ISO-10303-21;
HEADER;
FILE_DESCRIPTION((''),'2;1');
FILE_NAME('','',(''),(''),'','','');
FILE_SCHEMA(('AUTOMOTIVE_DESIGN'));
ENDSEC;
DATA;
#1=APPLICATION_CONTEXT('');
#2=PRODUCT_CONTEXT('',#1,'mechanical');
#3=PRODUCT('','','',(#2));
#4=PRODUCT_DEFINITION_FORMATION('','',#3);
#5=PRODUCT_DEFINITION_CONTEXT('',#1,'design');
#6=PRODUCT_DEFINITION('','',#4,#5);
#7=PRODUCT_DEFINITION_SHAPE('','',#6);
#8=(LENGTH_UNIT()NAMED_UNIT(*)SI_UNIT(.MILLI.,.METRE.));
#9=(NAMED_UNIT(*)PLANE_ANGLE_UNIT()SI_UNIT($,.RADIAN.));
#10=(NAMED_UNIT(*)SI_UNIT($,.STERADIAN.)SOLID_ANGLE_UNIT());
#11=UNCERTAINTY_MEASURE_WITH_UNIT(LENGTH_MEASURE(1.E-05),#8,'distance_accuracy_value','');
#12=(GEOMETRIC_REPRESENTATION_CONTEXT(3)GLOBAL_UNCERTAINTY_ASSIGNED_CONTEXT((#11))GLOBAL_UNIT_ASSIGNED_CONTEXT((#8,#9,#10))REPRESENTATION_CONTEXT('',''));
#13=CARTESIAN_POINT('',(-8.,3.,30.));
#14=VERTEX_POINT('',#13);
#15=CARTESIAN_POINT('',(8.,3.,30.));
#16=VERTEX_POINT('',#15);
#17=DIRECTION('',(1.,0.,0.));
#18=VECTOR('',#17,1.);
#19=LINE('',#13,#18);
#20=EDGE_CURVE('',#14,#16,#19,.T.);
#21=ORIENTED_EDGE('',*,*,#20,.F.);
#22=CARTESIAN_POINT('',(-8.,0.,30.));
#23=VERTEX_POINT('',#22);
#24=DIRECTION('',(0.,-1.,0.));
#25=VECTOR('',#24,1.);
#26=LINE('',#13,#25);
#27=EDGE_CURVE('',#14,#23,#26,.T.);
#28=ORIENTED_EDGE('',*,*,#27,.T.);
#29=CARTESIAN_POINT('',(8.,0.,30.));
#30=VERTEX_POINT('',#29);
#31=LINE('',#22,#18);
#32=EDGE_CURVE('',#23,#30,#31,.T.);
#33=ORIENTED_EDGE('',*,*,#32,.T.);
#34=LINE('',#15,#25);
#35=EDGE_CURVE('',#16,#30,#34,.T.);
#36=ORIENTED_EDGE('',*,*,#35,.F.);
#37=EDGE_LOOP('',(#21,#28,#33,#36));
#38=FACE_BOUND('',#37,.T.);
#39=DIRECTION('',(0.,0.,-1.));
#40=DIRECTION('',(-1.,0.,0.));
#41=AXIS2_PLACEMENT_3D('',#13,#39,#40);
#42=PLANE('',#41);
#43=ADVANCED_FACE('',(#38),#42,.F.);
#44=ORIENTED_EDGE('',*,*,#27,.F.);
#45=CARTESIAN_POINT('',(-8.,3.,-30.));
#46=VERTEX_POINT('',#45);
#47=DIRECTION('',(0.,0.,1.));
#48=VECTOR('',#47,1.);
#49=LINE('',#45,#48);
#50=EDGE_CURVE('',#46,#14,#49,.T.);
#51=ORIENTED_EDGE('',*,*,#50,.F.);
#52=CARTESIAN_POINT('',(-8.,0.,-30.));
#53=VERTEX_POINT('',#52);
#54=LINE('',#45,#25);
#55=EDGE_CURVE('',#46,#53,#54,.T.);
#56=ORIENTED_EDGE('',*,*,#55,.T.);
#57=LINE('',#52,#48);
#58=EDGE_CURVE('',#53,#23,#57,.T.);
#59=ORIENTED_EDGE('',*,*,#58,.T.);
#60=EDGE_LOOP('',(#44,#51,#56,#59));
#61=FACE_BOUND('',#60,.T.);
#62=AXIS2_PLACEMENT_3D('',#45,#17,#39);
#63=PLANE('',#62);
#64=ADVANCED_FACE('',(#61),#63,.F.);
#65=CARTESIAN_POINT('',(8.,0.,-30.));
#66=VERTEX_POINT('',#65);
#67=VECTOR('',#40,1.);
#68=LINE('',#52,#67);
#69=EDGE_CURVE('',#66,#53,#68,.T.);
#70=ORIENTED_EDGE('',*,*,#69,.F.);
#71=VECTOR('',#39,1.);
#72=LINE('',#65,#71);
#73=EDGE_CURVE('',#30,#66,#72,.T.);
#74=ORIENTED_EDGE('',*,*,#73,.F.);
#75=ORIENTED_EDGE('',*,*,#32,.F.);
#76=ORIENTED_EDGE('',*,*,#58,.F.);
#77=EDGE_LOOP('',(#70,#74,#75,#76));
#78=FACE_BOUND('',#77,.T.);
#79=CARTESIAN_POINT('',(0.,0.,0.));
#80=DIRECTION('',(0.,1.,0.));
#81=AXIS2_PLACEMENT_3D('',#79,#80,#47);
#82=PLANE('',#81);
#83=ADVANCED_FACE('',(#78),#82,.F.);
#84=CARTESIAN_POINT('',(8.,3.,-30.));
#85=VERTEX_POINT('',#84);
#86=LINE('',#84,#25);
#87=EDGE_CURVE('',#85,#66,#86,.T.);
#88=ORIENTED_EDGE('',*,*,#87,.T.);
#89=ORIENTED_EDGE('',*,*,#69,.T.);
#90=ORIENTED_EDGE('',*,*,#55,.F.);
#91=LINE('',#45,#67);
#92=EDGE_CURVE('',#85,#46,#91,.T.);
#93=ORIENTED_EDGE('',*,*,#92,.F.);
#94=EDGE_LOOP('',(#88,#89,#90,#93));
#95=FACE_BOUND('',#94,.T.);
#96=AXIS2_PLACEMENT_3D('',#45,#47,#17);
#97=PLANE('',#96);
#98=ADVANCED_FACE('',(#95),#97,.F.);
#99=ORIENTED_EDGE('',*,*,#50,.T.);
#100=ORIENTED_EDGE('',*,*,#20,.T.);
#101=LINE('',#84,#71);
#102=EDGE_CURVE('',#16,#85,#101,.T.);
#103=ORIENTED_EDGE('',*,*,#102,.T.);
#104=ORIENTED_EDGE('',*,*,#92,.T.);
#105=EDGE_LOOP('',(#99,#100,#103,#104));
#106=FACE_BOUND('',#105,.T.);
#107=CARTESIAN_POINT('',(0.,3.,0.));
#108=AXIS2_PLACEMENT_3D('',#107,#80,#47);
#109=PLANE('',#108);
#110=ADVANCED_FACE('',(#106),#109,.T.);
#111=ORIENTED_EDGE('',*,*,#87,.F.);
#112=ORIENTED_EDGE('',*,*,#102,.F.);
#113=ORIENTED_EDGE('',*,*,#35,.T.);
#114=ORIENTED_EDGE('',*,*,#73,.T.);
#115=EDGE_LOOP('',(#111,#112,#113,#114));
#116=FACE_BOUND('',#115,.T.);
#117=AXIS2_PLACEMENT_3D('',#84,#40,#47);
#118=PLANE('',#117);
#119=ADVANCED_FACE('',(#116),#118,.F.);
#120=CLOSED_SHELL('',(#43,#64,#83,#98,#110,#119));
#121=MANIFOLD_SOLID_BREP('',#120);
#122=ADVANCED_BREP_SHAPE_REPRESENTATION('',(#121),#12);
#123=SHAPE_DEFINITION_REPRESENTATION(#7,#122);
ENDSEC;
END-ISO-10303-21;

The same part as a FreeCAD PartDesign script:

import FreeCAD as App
import Part
import Sketcher

V = App.Vector
Q = App.Units.Quantity


def add_polygon(sketch, points):
    """Adds a closed chain of lines whose ends are joined by coincident constraints."""
    first, n = sketch.GeometryCount, len(points)
    for a, b in zip(points, points[1:] + points[:1]):
        sketch.addGeometry(Part.LineSegment(App.Vector(*a, 0), App.Vector(*b, 0)), False)
    for i in range(n):
        sketch.addConstraint(Sketcher.Constraint("Coincident", first + i, 2, first + (i + 1) % n, 1))

doc = App.newDocument("Part")
body = doc.addObject("PartDesign::Body", "Body")

sketch1 = body.newObject("Sketcher::SketchObject", "Sketch")
sketch1.AttachmentSupport = (doc.getObject("XZ_Plane"), [""])
sketch1.MapMode = "FlatFace"
add_polygon(sketch1, [(-8, -30), (-8, 30), (8, 30), (8, -30)])
sketch1.addConstraint([
    Sketcher.Constraint("Vertical", 0),
    Sketcher.Constraint("Horizontal", 1),
    Sketcher.Constraint("Vertical", 2),
    Sketcher.Constraint("Horizontal", 3),
    Sketcher.Constraint("Symmetric", 0, 2, 2, 2, -1, 1),
    Sketcher.Constraint("DistanceX", 1, 1, 1, 2, Q("16 mm")),
    Sketcher.Constraint("DistanceY", 0, 1, 0, 2, Q("60 mm")),
])
pad1 = body.newObject("PartDesign::Pad", "Pad")
pad1.Profile = sketch1
pad1.Length = 3
pad1.Reversed = True

doc.recompute()
